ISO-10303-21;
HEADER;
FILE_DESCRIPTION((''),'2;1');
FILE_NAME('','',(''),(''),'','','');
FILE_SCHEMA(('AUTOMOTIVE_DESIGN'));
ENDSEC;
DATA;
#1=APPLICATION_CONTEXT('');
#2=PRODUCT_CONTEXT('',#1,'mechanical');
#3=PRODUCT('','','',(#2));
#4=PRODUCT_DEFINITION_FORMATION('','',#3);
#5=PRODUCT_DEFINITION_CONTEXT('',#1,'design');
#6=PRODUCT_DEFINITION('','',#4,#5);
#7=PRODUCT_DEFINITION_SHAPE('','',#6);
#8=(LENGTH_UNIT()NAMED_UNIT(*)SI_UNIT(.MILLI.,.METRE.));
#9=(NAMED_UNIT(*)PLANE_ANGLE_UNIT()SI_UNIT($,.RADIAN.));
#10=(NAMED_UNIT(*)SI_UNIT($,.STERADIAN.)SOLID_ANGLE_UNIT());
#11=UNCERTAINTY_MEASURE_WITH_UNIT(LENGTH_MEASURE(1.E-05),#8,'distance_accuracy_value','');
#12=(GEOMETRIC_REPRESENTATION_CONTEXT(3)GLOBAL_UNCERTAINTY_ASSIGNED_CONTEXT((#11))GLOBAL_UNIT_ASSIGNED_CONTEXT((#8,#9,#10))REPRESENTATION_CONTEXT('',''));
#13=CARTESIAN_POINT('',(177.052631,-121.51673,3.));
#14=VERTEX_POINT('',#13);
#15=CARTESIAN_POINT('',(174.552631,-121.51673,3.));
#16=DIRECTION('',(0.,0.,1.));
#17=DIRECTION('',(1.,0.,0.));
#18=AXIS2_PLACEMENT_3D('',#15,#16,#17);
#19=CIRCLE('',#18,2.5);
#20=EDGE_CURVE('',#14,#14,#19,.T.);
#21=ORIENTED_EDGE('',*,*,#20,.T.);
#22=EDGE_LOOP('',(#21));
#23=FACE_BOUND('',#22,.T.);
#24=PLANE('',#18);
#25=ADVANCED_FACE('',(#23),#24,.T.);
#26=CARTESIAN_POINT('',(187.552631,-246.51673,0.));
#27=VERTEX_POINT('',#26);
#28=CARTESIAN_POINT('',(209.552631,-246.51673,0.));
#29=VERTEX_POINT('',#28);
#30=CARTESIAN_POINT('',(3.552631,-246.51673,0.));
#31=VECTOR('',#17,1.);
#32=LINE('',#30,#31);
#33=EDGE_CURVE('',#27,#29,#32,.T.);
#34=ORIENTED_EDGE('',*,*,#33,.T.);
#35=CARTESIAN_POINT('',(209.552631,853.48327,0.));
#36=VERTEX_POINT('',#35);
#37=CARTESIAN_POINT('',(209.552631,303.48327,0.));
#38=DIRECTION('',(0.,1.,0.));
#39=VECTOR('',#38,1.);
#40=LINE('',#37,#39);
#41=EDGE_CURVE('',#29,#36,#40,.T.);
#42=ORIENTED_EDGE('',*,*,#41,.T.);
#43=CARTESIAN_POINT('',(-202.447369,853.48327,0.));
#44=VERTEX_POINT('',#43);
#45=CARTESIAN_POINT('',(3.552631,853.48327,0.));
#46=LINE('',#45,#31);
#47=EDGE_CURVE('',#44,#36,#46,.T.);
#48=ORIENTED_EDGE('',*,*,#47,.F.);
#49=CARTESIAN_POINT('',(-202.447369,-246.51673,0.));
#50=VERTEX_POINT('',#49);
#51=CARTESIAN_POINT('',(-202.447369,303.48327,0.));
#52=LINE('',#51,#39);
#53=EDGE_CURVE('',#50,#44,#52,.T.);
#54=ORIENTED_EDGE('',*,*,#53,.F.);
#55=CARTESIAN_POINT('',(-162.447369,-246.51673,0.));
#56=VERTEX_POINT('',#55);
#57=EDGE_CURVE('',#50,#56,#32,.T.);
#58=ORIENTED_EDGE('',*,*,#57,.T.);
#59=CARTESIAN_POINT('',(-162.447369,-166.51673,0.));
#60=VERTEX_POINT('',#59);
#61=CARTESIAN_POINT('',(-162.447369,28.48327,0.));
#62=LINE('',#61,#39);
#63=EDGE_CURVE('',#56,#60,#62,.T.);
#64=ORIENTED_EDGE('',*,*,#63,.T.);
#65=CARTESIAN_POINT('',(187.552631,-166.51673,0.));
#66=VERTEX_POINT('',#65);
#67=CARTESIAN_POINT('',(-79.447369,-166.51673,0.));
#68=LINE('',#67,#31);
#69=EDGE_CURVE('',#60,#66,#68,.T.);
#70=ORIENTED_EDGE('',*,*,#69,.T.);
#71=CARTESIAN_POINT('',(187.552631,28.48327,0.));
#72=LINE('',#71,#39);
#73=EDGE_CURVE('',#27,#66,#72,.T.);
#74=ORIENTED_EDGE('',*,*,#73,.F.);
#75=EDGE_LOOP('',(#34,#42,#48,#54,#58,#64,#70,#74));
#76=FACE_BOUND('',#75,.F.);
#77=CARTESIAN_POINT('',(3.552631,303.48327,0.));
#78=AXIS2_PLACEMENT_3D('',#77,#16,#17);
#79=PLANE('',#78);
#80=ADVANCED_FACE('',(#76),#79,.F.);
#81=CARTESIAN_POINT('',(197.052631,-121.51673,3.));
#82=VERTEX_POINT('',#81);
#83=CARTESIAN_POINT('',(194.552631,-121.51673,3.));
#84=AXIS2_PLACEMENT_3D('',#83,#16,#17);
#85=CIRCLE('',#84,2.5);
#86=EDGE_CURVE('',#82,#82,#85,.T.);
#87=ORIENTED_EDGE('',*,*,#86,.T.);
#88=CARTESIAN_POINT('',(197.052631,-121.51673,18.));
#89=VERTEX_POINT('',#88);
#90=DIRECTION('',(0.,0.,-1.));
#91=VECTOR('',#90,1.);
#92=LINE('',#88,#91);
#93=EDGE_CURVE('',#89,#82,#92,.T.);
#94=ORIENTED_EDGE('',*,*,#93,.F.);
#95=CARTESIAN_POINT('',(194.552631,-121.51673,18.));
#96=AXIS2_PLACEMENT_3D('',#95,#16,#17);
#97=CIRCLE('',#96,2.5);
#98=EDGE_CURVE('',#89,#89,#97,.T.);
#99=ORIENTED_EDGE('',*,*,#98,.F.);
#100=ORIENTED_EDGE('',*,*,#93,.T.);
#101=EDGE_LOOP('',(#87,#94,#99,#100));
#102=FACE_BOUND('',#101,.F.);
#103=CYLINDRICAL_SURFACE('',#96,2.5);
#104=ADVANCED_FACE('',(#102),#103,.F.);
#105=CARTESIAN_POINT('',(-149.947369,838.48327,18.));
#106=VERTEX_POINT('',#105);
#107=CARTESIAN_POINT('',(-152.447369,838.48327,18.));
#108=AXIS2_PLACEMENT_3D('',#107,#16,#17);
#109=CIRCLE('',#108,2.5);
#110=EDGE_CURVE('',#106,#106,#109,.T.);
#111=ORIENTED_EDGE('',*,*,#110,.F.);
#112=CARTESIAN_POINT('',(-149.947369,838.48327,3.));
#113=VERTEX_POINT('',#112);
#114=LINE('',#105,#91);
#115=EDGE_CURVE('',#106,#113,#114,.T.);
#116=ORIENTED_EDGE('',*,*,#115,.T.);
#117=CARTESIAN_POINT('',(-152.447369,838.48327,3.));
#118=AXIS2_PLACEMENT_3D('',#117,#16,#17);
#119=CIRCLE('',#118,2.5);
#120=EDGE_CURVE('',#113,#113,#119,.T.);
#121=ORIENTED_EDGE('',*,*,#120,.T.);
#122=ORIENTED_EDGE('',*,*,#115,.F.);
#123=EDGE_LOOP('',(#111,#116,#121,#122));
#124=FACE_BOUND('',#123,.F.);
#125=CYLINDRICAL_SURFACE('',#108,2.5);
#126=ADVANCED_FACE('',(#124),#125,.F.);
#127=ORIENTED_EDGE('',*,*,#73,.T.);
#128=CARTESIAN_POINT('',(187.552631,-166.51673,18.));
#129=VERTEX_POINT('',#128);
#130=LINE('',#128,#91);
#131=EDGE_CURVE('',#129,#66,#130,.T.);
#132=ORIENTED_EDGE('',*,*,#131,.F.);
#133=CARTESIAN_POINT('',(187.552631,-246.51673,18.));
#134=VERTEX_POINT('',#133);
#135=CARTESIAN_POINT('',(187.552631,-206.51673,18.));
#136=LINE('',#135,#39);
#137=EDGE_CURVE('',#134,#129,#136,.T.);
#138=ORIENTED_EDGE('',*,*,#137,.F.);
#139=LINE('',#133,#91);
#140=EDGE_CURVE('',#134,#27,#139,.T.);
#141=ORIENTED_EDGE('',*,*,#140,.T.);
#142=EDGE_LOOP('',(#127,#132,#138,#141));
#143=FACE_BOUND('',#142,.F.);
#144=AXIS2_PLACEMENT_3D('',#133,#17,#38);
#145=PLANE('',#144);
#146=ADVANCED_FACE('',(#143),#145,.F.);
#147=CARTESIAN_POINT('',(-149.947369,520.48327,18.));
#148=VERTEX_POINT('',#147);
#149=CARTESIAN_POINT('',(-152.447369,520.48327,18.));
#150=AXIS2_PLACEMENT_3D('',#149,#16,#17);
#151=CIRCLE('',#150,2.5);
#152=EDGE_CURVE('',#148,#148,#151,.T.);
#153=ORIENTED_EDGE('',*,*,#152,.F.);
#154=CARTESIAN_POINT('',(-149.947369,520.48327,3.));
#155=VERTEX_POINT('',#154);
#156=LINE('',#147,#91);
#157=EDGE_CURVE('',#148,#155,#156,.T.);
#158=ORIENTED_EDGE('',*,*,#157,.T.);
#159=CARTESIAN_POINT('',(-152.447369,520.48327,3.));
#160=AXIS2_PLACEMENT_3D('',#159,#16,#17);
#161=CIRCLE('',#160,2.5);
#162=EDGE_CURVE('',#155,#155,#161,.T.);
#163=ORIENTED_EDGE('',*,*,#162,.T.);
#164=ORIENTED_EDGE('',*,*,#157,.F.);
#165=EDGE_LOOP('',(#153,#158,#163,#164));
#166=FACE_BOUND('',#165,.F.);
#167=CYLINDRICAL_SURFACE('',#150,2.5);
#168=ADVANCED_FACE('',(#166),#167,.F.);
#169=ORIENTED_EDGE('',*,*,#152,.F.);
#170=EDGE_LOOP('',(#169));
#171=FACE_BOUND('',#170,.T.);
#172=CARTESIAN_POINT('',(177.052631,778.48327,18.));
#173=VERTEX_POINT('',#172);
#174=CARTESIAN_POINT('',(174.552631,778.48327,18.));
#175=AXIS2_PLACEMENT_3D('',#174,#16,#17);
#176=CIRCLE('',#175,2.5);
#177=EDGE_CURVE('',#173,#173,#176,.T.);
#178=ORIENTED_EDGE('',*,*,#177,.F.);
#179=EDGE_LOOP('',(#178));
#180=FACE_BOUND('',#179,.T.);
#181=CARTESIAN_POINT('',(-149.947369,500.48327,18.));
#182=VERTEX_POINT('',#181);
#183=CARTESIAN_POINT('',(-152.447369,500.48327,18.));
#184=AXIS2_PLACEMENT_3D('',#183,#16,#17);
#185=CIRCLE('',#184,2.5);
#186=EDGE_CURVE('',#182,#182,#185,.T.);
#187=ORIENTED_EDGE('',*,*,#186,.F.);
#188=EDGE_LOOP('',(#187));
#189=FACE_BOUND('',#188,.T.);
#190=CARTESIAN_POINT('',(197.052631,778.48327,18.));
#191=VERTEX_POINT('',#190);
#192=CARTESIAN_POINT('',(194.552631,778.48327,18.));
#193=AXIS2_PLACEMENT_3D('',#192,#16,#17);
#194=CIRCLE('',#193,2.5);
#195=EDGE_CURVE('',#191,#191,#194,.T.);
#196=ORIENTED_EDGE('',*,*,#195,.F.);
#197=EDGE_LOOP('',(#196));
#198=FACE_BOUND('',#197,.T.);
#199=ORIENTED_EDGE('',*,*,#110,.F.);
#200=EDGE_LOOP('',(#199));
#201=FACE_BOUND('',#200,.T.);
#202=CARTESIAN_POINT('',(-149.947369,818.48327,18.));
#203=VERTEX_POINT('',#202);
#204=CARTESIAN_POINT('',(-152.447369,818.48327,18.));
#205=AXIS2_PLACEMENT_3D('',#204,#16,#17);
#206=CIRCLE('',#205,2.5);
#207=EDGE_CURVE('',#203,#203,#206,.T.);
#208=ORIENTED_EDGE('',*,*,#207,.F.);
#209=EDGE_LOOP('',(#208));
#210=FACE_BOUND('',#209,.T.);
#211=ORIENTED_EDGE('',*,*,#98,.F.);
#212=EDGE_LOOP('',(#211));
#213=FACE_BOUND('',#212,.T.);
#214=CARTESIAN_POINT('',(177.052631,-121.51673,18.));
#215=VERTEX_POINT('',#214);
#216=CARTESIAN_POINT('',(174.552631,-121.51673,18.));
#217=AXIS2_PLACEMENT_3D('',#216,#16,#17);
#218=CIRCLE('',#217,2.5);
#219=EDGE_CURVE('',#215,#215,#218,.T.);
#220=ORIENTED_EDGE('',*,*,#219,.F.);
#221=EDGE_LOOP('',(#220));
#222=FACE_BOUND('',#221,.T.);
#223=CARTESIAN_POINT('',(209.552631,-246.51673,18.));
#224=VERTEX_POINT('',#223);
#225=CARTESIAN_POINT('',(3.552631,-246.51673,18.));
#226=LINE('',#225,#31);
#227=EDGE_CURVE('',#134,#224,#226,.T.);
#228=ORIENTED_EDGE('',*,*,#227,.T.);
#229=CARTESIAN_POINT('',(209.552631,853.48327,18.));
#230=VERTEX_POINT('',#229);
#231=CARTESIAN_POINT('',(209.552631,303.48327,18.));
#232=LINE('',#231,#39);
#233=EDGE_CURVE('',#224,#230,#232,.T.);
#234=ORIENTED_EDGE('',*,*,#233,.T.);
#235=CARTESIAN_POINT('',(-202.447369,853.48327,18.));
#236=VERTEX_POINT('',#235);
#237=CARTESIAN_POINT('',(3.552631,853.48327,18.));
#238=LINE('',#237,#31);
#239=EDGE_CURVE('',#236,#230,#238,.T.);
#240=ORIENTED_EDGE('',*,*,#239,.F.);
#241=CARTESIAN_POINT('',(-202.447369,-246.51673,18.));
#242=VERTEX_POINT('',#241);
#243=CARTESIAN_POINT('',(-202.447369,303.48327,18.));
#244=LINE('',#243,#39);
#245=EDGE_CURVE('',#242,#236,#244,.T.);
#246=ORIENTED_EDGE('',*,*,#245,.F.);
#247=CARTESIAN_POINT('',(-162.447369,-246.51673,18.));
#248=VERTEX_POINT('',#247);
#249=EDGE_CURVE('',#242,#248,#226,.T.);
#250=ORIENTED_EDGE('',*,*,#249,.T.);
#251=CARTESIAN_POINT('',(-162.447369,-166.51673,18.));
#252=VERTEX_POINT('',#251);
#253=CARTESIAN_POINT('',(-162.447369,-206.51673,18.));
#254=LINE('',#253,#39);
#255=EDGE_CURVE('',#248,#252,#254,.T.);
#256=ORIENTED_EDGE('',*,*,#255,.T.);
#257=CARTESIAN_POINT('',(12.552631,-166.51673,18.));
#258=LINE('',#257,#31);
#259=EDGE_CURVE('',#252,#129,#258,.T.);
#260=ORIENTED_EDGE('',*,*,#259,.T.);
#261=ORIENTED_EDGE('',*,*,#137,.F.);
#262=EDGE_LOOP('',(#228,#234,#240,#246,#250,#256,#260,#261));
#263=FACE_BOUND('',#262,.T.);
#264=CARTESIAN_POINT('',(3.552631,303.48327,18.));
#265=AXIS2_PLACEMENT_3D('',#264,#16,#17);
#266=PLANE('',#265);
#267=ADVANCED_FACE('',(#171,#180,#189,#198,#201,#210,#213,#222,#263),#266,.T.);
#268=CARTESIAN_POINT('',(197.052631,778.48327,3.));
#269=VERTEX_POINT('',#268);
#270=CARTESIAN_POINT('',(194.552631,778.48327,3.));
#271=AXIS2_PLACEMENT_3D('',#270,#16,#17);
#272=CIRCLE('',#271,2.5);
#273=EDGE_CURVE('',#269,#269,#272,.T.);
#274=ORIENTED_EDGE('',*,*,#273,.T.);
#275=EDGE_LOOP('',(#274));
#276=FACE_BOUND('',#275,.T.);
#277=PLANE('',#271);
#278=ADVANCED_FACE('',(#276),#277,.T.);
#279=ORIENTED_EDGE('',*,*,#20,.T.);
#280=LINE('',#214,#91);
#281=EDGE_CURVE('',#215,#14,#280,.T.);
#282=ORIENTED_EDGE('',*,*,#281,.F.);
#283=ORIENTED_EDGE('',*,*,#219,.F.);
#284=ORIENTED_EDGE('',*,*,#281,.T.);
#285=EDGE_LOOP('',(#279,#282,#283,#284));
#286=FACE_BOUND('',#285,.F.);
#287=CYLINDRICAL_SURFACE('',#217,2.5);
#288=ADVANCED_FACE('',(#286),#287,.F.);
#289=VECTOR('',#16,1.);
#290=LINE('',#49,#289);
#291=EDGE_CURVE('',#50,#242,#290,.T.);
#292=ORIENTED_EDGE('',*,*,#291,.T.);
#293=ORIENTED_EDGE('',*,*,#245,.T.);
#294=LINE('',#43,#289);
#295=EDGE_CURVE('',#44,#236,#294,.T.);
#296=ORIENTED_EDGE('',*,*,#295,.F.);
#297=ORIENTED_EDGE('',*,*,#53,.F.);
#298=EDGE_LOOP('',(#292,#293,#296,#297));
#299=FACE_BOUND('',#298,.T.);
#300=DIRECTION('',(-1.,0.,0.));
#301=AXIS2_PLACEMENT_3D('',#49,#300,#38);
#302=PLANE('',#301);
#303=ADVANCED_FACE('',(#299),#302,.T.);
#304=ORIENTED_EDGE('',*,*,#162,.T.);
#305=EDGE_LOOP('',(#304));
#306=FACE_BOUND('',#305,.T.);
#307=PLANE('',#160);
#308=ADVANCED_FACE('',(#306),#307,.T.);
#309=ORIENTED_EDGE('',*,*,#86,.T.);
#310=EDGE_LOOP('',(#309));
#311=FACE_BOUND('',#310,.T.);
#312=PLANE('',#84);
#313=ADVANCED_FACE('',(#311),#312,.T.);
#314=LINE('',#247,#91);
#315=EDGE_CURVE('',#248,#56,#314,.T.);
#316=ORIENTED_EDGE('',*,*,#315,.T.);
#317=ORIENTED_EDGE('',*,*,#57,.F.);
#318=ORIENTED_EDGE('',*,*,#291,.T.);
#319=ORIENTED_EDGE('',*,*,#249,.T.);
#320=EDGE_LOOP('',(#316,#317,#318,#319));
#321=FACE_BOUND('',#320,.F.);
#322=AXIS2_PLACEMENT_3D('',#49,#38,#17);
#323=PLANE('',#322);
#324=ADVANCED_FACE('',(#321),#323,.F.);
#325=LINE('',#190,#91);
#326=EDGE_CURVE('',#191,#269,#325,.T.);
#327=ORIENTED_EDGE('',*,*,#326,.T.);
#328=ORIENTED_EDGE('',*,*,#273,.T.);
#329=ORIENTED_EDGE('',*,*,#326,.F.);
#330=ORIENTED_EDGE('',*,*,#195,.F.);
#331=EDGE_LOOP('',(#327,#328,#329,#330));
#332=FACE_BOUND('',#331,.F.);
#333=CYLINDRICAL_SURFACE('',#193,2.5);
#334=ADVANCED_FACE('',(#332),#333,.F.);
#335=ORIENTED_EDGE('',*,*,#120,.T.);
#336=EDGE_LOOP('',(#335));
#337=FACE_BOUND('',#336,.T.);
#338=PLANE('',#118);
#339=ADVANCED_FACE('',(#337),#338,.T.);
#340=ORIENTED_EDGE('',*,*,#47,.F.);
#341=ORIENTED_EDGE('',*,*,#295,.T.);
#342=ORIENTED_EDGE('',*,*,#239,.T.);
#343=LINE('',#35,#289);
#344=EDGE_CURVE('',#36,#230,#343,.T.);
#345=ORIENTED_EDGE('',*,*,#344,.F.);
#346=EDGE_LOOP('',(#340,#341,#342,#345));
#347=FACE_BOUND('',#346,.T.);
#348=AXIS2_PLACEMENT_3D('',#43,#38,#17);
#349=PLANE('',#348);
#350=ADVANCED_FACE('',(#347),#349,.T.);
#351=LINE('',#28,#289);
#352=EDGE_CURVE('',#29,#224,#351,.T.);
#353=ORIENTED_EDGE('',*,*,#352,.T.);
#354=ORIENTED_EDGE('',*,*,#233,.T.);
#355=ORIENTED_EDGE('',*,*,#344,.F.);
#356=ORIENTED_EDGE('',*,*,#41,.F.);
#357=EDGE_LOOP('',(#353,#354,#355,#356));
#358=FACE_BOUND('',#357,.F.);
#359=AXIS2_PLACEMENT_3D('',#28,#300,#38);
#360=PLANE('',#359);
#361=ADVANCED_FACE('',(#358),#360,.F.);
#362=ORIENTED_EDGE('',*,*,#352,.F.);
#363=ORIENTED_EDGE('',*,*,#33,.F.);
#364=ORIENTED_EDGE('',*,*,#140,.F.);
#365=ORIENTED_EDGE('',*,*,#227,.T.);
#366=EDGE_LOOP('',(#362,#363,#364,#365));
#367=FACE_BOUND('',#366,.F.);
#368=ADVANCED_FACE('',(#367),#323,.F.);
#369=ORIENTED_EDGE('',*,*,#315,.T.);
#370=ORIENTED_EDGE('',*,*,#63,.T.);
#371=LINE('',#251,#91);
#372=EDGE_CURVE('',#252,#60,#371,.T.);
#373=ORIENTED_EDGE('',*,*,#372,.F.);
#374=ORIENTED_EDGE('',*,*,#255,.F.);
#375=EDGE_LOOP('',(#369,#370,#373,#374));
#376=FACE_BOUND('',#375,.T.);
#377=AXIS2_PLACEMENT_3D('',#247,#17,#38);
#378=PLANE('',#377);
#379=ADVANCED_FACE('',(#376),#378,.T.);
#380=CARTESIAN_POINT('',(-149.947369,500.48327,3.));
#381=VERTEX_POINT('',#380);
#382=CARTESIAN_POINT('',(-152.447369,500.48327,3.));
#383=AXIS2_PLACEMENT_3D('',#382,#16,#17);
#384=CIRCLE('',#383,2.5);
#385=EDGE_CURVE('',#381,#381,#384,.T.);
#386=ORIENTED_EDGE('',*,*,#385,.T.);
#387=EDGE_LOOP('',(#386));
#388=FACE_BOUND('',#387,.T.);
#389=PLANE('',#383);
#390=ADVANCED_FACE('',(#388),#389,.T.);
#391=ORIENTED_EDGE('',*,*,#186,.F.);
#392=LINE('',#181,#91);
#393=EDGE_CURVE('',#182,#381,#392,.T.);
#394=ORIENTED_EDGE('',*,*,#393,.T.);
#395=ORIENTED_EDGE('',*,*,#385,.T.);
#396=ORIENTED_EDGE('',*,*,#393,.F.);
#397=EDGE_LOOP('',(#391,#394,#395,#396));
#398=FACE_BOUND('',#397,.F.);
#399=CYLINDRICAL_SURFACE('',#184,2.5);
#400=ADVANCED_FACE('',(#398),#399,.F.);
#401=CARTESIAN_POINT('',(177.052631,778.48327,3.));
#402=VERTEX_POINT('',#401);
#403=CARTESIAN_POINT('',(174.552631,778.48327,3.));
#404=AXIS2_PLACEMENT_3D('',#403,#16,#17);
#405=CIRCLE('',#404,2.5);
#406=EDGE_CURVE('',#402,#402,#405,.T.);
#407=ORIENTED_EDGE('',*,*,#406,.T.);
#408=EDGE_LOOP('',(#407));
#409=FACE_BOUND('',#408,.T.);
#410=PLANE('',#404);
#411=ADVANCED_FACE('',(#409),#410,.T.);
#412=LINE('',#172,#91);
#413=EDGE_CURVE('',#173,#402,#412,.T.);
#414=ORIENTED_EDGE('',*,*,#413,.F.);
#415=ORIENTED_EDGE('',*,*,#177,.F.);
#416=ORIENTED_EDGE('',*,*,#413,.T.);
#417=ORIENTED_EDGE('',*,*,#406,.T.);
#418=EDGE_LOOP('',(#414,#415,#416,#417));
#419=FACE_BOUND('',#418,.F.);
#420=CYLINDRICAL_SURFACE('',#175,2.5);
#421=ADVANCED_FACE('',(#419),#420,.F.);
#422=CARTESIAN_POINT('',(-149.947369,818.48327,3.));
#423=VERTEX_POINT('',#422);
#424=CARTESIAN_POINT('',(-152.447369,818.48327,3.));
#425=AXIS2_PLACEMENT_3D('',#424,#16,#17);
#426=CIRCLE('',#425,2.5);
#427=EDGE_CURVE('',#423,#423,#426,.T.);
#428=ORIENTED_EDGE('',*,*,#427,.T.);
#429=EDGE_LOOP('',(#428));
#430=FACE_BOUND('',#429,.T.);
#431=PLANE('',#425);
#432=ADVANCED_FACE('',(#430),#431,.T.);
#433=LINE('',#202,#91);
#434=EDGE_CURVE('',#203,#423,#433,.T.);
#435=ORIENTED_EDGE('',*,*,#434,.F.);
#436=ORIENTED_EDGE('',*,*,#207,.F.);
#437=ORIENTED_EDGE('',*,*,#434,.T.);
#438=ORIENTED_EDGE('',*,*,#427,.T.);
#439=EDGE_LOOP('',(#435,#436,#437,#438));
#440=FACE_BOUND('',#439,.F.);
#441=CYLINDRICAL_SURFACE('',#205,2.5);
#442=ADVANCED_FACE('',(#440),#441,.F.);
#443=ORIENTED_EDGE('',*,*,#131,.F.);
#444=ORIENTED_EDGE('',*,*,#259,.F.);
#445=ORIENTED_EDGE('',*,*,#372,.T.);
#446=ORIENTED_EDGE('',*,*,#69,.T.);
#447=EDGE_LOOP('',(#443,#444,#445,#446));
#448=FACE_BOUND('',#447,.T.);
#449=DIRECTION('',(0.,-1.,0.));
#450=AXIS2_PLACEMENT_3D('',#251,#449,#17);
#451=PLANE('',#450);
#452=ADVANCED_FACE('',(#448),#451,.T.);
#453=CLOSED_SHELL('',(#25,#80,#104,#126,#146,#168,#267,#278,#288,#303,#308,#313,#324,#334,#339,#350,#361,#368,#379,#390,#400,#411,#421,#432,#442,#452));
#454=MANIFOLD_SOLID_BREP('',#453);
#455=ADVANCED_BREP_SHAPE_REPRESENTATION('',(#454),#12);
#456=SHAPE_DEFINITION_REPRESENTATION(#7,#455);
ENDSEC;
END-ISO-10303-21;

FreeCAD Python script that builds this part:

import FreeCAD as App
import Part
import Sketcher


def add_polygon(sketch, points):
    """Adds a closed chain of lines whose ends are joined by coincident constraints."""
    first, n = sketch.GeometryCount, len(points)
    for a, b in zip(points, points[1:] + points[:1]):
        sketch.addGeometry(Part.LineSegment(App.Vector(*a, 0), App.Vector(*b, 0)), False)
    for i in range(n):
        sketch.addConstraint(Sketcher.Constraint("Coincident", first + i, 2, first + (i + 1) % n, 1))

doc = App.newDocument("Part")
body = doc.addObject("PartDesign::Body", "Body")

sketch1 = doc.addObject("Sketcher::SketchObject", "Sketch")
body.addObject(sketch1)
sketch1.AttachmentSupport = (doc.XY_Plane, [""])
sketch1.MapMode = "FlatFace"
add_polygon(sketch1, [(-202, 853), (-202, -247), (210, -247), (210, 853)])
sketch1.addConstraint([
    Sketcher.Constraint("Vertical", 0),
    Sketcher.Constraint("Horizontal", 1),
    Sketcher.Constraint("Vertical", 2),
    Sketcher.Constraint("Horizontal", 3),
    Sketcher.Constraint("DistanceX", 1, 1, 1, 2, 412.0),
    Sketcher.Constraint("DistanceY", 0, 2, 0, 1, 1100.0),
    Sketcher.Constraint("DistanceX", 0, 2, -1, 1, 202.447369),
    Sketcher.Constraint("DistanceY", 0, 2, -1, 1, 246.51673),
])
pad1 = doc.addObject("PartDesign::Pad", "Pad")
body.addObject(pad1)
pad1.Profile = sketch1
pad1.Length = 18

sketch2 = doc.addObject("Sketcher::SketchObject", "Sketch001")
body.addObject(sketch2)
sketch2.AttachmentSupport = (doc.XY_Plane, [""])
sketch2.MapMode = "FlatFace"
sketch2.AttachmentOffset = App.Placement(App.Vector(0, 0, 18), App.Rotation())
add_polygon(sketch2, [(-162, -167), (-162, -247), (188, -247), (188, -167)])
sketch2.addConstraint([
    Sketcher.Constraint("Vertical", 0),
    Sketcher.Constraint("Horizontal", 1),
    Sketcher.Constraint("Vertical", 2),
    Sketcher.Constraint("Horizontal", 3),
    Sketcher.Constraint("DistanceX", 1, 1, 1, 2, 350.0),
    Sketcher.Constraint("DistanceY", 0, 2, 0, 1, 80.0),
    Sketcher.Constraint("DistanceX", 0, 2, -1, 1, 162.447369),
    Sketcher.Constraint("DistanceY", 0, 2, -1, 1, 246.51673),
])
pocket1 = doc.addObject("PartDesign::Pocket", "Pocket")
body.addObject(pocket1)
pocket1.Profile = sketch2
pocket1.Length = 25

sketch3 = doc.addObject("Sketcher::SketchObject", "Sketch002")
body.addObject(sketch3)
sketch3.AttachmentSupport = (doc.XY_Plane, [""])
sketch3.MapMode = "FlatFace"
sketch3.AttachmentOffset = App.Placement(App.Vector(0, 0, 18), App.Rotation())
sketch3.addGeometry([
    Part.Circle(App.Vector(194.6, 778.5, 0), App.Vector(0, 0, 1), 2.5),
    Part.Circle(App.Vector(174.6, 778.5, 0), App.Vector(0, 0, 1), 2.5),
    Part.Circle(App.Vector(-152.4, 818.5, 0), App.Vector(0, 0, 1), 2.5),
    Part.Circle(App.Vector(-152.4, 838.5, 0), App.Vector(0, 0, 1), 2.5),
    Part.Circle(App.Vector(194.6, -121.5, 0), App.Vector(0, 0, 1), 2.5),
    Part.Circle(App.Vector(174.6, -121.5, 0), App.Vector(0, 0, 1), 2.5),
    Part.Circle(App.Vector(-152.4, 520.5, 0), App.Vector(0, 0, 1), 2.5),
    Part.Circle(App.Vector(-152.4, 500.5, 0), App.Vector(0, 0, 1), 2.5),
], False)
sketch3.addConstraint([
    Sketcher.Constraint("Equal", 0, 1),
    Sketcher.Constraint("Equal", 1, 2),
    Sketcher.Constraint("Equal", 2, 3),
    Sketcher.Constraint("Equal", 3, 4),
    Sketcher.Constraint("Equal", 4, 5),
    Sketcher.Constraint("Equal", 5, 6),
    Sketcher.Constraint("Equal", 6, 7),
    Sketcher.Constraint("Horizontal", 0, 3, 1, 3),
    Sketcher.Constraint("Horizontal", 4, 3, 5, 3),
    Sketcher.Constraint("Vertical", 2, 3, 3, 3),
    Sketcher.Constraint("Vertical", 0, 3, 4, 3),
    Sketcher.Constraint("Vertical", 1, 3, 5, 3),
    Sketcher.Constraint("Vertical", 3, 3, 6, 3),
    Sketcher.Constraint("Vertical", 6, 3, 7, 3),
    Sketcher.Constraint("Diameter", 0, 5.0),
    Sketcher.Constraint("DistanceX", 1, 3, 0, 3, 20.0),
    Sketcher.Constraint("DistanceX", 2, 3, 1, 3, 327.0),
    Sketcher.Constraint("DistanceY", 1, 3, 2, 3, 40.0),
    Sketcher.Constraint("DistanceY", 2, 3, 3, 3, 20.0),
    Sketcher.Constraint("DistanceY", 4, 3, 0, 3, 900.0),
    Sketcher.Constraint("DistanceY", 6, 3, 2, 3, 298.0),
    Sketcher.Constraint("DistanceY", 7, 3, 6, 3, 20.0),
    Sketcher.Constraint("DistanceX", -1, 1, 0, 3, 194.552631),
    Sketcher.Constraint("DistanceY", -1, 1, 0, 3, 778.48327),
])
pocket2 = doc.addObject("PartDesign::Pocket", "Pocket001")
body.addObject(pocket2)
pocket2.Profile = sketch3
pocket2.Length = 15

doc.recompute()
